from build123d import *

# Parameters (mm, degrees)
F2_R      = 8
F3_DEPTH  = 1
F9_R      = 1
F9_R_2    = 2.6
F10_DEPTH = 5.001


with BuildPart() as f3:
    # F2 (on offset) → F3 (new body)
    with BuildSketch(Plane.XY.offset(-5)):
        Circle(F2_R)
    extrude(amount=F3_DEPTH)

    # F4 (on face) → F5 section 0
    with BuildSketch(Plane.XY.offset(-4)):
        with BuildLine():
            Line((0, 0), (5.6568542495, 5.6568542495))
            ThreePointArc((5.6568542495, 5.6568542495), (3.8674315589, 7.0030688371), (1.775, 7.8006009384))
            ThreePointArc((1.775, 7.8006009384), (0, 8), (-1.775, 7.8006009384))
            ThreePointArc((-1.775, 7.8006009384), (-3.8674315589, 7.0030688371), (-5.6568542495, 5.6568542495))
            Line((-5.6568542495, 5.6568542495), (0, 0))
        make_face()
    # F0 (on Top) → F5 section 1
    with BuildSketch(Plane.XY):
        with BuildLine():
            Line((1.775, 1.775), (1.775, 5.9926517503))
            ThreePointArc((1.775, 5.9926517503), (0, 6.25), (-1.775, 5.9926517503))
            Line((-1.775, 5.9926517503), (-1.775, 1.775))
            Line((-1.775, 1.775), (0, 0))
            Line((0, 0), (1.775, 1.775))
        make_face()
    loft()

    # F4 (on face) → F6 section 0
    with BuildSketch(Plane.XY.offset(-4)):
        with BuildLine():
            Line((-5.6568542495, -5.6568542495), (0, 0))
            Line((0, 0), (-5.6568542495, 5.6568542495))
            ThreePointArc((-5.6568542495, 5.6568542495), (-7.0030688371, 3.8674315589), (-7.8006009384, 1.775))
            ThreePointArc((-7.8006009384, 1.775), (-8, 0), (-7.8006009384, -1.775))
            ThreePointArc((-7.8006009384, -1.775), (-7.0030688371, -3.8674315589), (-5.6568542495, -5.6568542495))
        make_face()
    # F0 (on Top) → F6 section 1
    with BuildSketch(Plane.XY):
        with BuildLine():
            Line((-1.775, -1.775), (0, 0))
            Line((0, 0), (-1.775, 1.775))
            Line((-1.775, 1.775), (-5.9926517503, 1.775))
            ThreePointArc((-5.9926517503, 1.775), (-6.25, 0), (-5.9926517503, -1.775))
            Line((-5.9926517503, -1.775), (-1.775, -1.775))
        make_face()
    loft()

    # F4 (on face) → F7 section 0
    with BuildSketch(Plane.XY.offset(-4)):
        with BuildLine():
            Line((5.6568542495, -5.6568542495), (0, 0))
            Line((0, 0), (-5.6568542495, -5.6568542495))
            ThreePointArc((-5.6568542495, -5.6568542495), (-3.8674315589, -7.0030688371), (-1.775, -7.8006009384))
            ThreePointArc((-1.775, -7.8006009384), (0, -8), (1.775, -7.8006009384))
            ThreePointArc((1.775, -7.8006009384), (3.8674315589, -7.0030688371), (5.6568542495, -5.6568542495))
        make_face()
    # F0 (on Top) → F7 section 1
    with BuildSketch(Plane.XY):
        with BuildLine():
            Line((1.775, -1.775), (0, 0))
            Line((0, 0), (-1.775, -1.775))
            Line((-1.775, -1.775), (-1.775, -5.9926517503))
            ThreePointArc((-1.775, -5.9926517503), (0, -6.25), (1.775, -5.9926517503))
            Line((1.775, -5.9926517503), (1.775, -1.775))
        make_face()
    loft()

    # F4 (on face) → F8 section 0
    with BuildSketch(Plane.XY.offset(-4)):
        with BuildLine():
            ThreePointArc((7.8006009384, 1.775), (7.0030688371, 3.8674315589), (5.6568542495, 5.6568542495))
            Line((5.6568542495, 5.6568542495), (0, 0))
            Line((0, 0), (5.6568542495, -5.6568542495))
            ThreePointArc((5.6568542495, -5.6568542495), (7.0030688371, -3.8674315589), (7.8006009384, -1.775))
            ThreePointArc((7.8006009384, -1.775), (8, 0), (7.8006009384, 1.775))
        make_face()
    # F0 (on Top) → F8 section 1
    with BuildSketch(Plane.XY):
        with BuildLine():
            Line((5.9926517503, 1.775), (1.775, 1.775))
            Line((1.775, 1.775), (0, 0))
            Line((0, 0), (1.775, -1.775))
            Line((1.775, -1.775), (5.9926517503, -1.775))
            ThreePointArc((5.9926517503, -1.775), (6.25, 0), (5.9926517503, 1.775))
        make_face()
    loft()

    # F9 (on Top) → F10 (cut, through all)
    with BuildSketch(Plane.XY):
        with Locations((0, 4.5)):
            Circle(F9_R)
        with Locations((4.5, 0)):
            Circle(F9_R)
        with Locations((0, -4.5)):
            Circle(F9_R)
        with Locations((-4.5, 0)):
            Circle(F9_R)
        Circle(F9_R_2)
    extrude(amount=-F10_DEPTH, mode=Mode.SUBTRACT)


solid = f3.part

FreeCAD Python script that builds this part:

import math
import FreeCAD as App
import Part
import Sketcher

doc = App.newDocument("Part")
body = doc.addObject("PartDesign::Body", "Body")

# Sketch on XY plane
sketch1 = body.newObject("Sketcher::SketchObject", "Sketch")
sketch1.AttachmentSupport = (doc.getObject("XY_Plane"), [""])
sketch1.MapMode = "FlatFace"
sketch1.AttachmentOffset = App.Placement(App.Vector(0, 0, -5), App.Rotation())
sketch1.addGeometry(Part.Circle(App.Vector(0, 0, 0), App.Vector(0, 0, 1), 8), False)
sketch1.addConstraint([
    Sketcher.Constraint("Coincident", 0, 3, -1, 1),
    Sketcher.Constraint("Diameter", 0, 16.0),
])
pad1 = body.newObject("PartDesign::Pad", "Pad")
pad1.Profile = sketch1
pad1.Length = 1

# Sketch on XY plane
sketch2 = body.newObject("Sketcher::SketchObject", "Sketch001")
sketch2.AttachmentSupport = (doc.getObject("XY_Plane"), [""])
sketch2.MapMode = "FlatFace"
sketch2.AttachmentOffset = App.Placement(App.Vector(0, 0, -4), App.Rotation())
sketch2.addGeometry([
    Part.LineSegment(App.Vector(0, 0, 0), App.Vector(5.7, 5.7, 0)),  # 0
    Part.ArcOfCircle(Part.Circle(App.Vector(0, 0, 0), App.Vector(0, 0, 1), 8), math.radians(45), math.radians(77)),  # 1
    Part.ArcOfCircle(Part.Circle(App.Vector(0, 0, 0), App.Vector(0, 0, 1), 8), math.radians(77), math.radians(103)),  # 2
    Part.ArcOfCircle(Part.Circle(App.Vector(0, 0, 0), App.Vector(0, 0, 1), 8), math.radians(103), math.radians(135)),  # 3
    Part.LineSegment(App.Vector(-5.7, 5.7, 0), App.Vector(0, 0, 0)),  # 4
], False)
sketch2.addConstraint([
    Sketcher.Constraint("Coincident", 0, 2, 1, 1),
    Sketcher.Constraint("Tangent", 1, 2, 2, 1),
    Sketcher.Constraint("Tangent", 2, 2, 3, 1),
    Sketcher.Constraint("Coincident", 3, 2, 4, 1),
    Sketcher.Constraint("Coincident", 4, 2, 0, 1),
    Sketcher.Constraint("Coincident", 1, 3, -1, 1),
    Sketcher.Constraint("Coincident", 3, 3, -1, 1),
    Sketcher.Constraint("Coincident", 4, 2, -1, 1),
    Sketcher.Constraint("Perpendicular", 0, 4),
    Sketcher.Constraint("Horizontal", 1, 2, 2, 2),
    Sketcher.Constraint("Horizontal", 0, 2, 3, 2),
    Sketcher.Constraint("Radius", 1, 8.0),
    Sketcher.Constraint("DistanceX", 2, 2, 1, 2, 3.55),
])

# Sketch on XY plane
sketch3 = body.newObject("Sketcher::SketchObject", "Sketch002")
sketch3.AttachmentSupport = (doc.getObject("XY_Plane"), [""])
sketch3.MapMode = "FlatFace"
sketch3.addGeometry([
    Part.LineSegment(App.Vector(1.8, 1.8, 0), App.Vector(1.8, 6, 0)),  # 0
    Part.ArcOfCircle(Part.Circle(App.Vector(0, 0, 0), App.Vector(0, 0, 1), 6.3), math.radians(74), math.radians(106)),  # 1
    Part.LineSegment(App.Vector(-1.8, 6, 0), App.Vector(-1.8, 1.8, 0)),  # 2
    Part.LineSegment(App.Vector(-1.8, 1.8, 0), App.Vector(0, 0, 0)),  # 3
    Part.LineSegment(App.Vector(0, 0, 0), App.Vector(1.8, 1.8, 0)),  # 4
], False)
sketch3.addConstraint([
    Sketcher.Constraint("Coincident", 0, 2, 1, 1),
    Sketcher.Constraint("Coincident", 1, 2, 2, 1),
    Sketcher.Constraint("Coincident", 2, 2, 3, 1),
    Sketcher.Constraint("Coincident", 3, 2, 4, 1),
    Sketcher.Constraint("Coincident", 4, 2, 0, 1),
    Sketcher.Constraint("Vertical", 0),
    Sketcher.Constraint("Vertical", 2),
    Sketcher.Constraint("Coincident", 1, 3, -1, 1),
    Sketcher.Constraint("Coincident", 3, 2, -1, 1),
    Sketcher.Constraint("Symmetric", 2, 2, 4, 2, -2),
    Sketcher.Constraint("Perpendicular", 3, 4),
    Sketcher.Constraint("Radius", 1, 6.25),
    Sketcher.Constraint("DistanceX", 1, 2, 0, 2, 3.55),
])

additiveloft = body.newObject("PartDesign::AdditiveLoft", "AdditiveLoft")
additiveloft.Profile = sketch2
additiveloft.Sections = [sketch3]

# Sketch on XY plane
sketch4 = body.newObject("Sketcher::SketchObject", "Sketch003")
sketch4.AttachmentSupport = (doc.getObject("XY_Plane"), [""])
sketch4.MapMode = "FlatFace"
sketch4.AttachmentOffset = App.Placement(App.Vector(0, 0, -4), App.Rotation())
sketch4.addGeometry([
    Part.LineSegment(App.Vector(-5.7, -5.7, 0), App.Vector(0, 0, 0)),  # 0
    Part.LineSegment(App.Vector(0, 0, 0), App.Vector(-5.7, 5.7, 0)),  # 1
    Part.ArcOfCircle(Part.Circle(App.Vector(0, 0, 0), App.Vector(0, 0, 1), 8), math.radians(135), math.radians(167)),  # 2
    Part.ArcOfCircle(Part.Circle(App.Vector(0, 0, 0), App.Vector(0, 0, 1), 8), math.radians(167), math.radians(193)),  # 3
    Part.ArcOfCircle(Part.Circle(App.Vector(0, 0, 0), App.Vector(0, 0, 1), 8), math.radians(-167), math.radians(-135)),  # 4
], False)
sketch4.addConstraint([
    Sketcher.Constraint("Coincident", 0, 2, 1, 1),
    Sketcher.Constraint("Coincident", 1, 2, 2, 1),
    Sketcher.Constraint("Tangent", 2, 2, 3, 1),
    Sketcher.Constraint("Tangent", 3, 2, 4, 1),
    Sketcher.Constraint("Coincident", 4, 2, 0, 1),
    Sketcher.Constraint("Coincident", 2, 3, -1, 1),
    Sketcher.Constraint("Coincident", 4, 3, -1, 1),
    Sketcher.Constraint("Coincident", 0, 2, -1, 1),
    Sketcher.Constraint("Perpendicular", 0, 1),
    Sketcher.Constraint("Vertical", 2, 2, 3, 2),
    Sketcher.Constraint("Vertical", 1, 2, 4, 2),
    Sketcher.Constraint("Radius", 2, 8.0),
    Sketcher.Constraint("DistanceY", 3, 2, 2, 2, 3.55),
])

# Sketch on XY plane
sketch5 = body.newObject("Sketcher::SketchObject", "Sketch004")
sketch5.AttachmentSupport = (doc.getObject("XY_Plane"), [""])
sketch5.MapMode = "FlatFace"
sketch5.addGeometry([
    Part.LineSegment(App.Vector(-1.8, -1.8, 0), App.Vector(0, 0, 0)),  # 0
    Part.LineSegment(App.Vector(0, 0, 0), App.Vector(-1.8, 1.8, 0)),  # 1
    Part.LineSegment(App.Vector(-1.8, 1.8, 0), App.Vector(-6, 1.8, 0)),  # 2
    Part.ArcOfCircle(Part.Circle(App.Vector(0, 0, 0), App.Vector(0, 0, 1), 6.3), math.radians(164), math.radians(196)),  # 3
    Part.LineSegment(App.Vector(-6, -1.8, 0), App.Vector(-1.8, -1.8, 0)),  # 4
], False)
sketch5.addConstraint([
    Sketcher.Constraint("Coincident", 0, 2, 1, 1),
    Sketcher.Constraint("Coincident", 1, 2, 2, 1),
    Sketcher.Constraint("Coincident", 2, 2, 3, 1),
    Sketcher.Constraint("Coincident", 3, 2, 4, 1),
    Sketcher.Constraint("Coincident", 4, 2, 0, 1),
    Sketcher.Constraint("Horizontal", 2),
    Sketcher.Constraint("Horizontal", 4),
    Sketcher.Constraint("Coincident", 3, 3, -1, 1),
    Sketcher.Constraint("Coincident", 0, 2, -1, 1),
    Sketcher.Constraint("Symmetric", 1, 2, 4, 2, -1),
    Sketcher.Constraint("Perpendicular", 0, 1),
    Sketcher.Constraint("Radius", 3, 6.25),
    Sketcher.Constraint("DistanceY", 3, 2, 2, 2, 3.55),
])

additiveloft2 = body.newObject("PartDesign::AdditiveLoft", "AdditiveLoft001")
additiveloft2.Profile = sketch4
additiveloft2.Sections = [sketch5]

# Sketch on XY plane
sketch6 = body.newObject("Sketcher::SketchObject", "Sketch005")
sketch6.AttachmentSupport = (doc.getObject("XY_Plane"), [""])
sketch6.MapMode = "FlatFace"
sketch6.AttachmentOffset = App.Placement(App.Vector(0, 0, -4), App.Rotation())
sketch6.addGeometry([
    Part.LineSegment(App.Vector(5.7, -5.7, 0), App.Vector(0, 0, 0)),  # 0
    Part.LineSegment(App.Vector(0, 0, 0), App.Vector(-5.7, -5.7, 0)),  # 1
    Part.ArcOfCircle(Part.Circle(App.Vector(0, 0, 0), App.Vector(0, 0, 1), 8), math.radians(-135), math.radians(-103)),  # 2
    Part.ArcOfCircle(Part.Circle(App.Vector(0, 0, 0), App.Vector(0, 0, 1), 8), math.radians(-103), math.radians(-77)),  # 3
    Part.ArcOfCircle(Part.Circle(App.Vector(0, 0, 0), App.Vector(0, 0, 1), 8), math.radians(-77), math.radians(-45)),  # 4
], False)
sketch6.addConstraint([
    Sketcher.Constraint("Coincident", 0, 2, 1, 1),
    Sketcher.Constraint("Coincident", 1, 2, 2, 1),
    Sketcher.Constraint("Tangent", 2, 2, 3, 1),
    Sketcher.Constraint("Tangent", 3, 2, 4, 1),
    Sketcher.Constraint("Coincident", 4, 2, 0, 1),
    Sketcher.Constraint("Coincident", 2, 3, -1, 1),
    Sketcher.Constraint("Coincident", 4, 3, -1, 1),
    Sketcher.Constraint("Coincident", 0, 2, -1, 1),
    Sketcher.Constraint("Perpendicular", 0, 1),
    Sketcher.Constraint("Horizontal", 2, 2, 3, 2),
    Sketcher.Constraint("Horizontal", 1, 2, 4, 2),
    Sketcher.Constraint("Radius", 2, 8.0),
    Sketcher.Constraint("DistanceX", 2, 2, 3, 2, 3.55),
])

# Sketch on XY plane
sketch7 = body.newObject("Sketcher::SketchObject", "Sketch006")
sketch7.AttachmentSupport = (doc.getObject("XY_Plane"), [""])
sketch7.MapMode = "FlatFace"
sketch7.addGeometry([
    Part.LineSegment(App.Vector(1.8, -1.8, 0), App.Vector(0, 0, 0)),  # 0
    Part.LineSegment(App.Vector(0, 0, 0), App.Vector(-1.8, -1.8, 0)),  # 1
    Part.LineSegment(App.Vector(-1.8, -1.8, 0), App.Vector(-1.8, -6, 0)),  # 2
    Part.ArcOfCircle(Part.Circle(App.Vector(0, 0, 0), App.Vector(0, 0, 1), 6.3), math.radians(-106), math.radians(-74)),  # 3
    Part.LineSegment(App.Vector(1.8, -6, 0), App.Vector(1.8, -1.8, 0)),  # 4
], False)
sketch7.addConstraint([
    Sketcher.Constraint("Coincident", 0, 2, 1, 1),
    Sketcher.Constraint("Coincident", 1, 2, 2, 1),
    Sketcher.Constraint("Coincident", 2, 2, 3, 1),
    Sketcher.Constraint("Coincident", 3, 2, 4, 1),
    Sketcher.Constraint("Coincident", 4, 2, 0, 1),
    Sketcher.Constraint("Vertical", 2),
    Sketcher.Constraint("Vertical", 4),
    Sketcher.Constraint("Coincident", 3, 3, -1, 1),
    Sketcher.Constraint("Coincident", 0, 2, -1, 1),
    Sketcher.Constraint("Symmetric", 1, 2, 4, 2, -2),
    Sketcher.Constraint("Perpendicular", 0, 1),
    Sketcher.Constraint("Radius", 3, 6.25),
    Sketcher.Constraint("DistanceX", 2, 2, 3, 2, 3.55),
])

additiveloft3 = body.newObject("PartDesign::AdditiveLoft", "AdditiveLoft002")
additiveloft3.Profile = sketch6
additiveloft3.Sections = [sketch7]

# Sketch on XY plane
sketch8 = body.newObject("Sketcher::SketchObject", "Sketch007")
sketch8.AttachmentSupport = (doc.getObject("XY_Plane"), [""])
sketch8.MapMode = "FlatFace"
sketch8.AttachmentOffset = App.Placement(App.Vector(0, 0, -4), App.Rotation())
sketch8.addGeometry([
    Part.ArcOfCircle(Part.Circle(App.Vector(0, 0, 0), App.Vector(0, 0, 1), 8), math.radians(13), math.radians(45)),  # 0
    Part.LineSegment(App.Vector(5.7, 5.7, 0), App.Vector(0, 0, 0)),  # 1
    Part.LineSegment(App.Vector(0, 0, 0), App.Vector(5.7, -5.7, 0)),  # 2
    Part.ArcOfCircle(Part.Circle(App.Vector(0, 0, 0), App.Vector(0, 0, 1), 8), math.radians(-45), math.radians(-13)),  # 3
    Part.ArcOfCircle(Part.Circle(App.Vector(0, 0, 0), App.Vector(0, 0, 1), 8), math.radians(-13), math.radians(13)),  # 4
], False)
sketch8.addConstraint([
    Sketcher.Constraint("Coincident", 0, 2, 1, 1),
    Sketcher.Constraint("Coincident", 1, 2, 2, 1),
    Sketcher.Constraint("Coincident", 2, 2, 3, 1),
    Sketcher.Constraint("Tangent", 3, 2, 4, 1),
    Sketcher.Constraint("Tangent", 4, 2, 0, 1),
    Sketcher.Constraint("Coincident", 0, 3, -1, 1),
    Sketcher.Constraint("Coincident", 3, 3, -1, 1),
    Sketcher.Constraint("Coincident", 1, 2, -1, 1),
    Sketcher.Constraint("Perpendicular", 1, 2),
    Sketcher.Constraint("Vertical", 0, 2, 2, 2),
    Sketcher.Constraint("Vertical", 3, 2, 4, 2),
    Sketcher.Constraint("Radius", 0, 8.0),
    Sketcher.Constraint("DistanceY", 3, 2, 4, 2, 3.55),
])

# Sketch on XY plane
sketch9 = body.newObject("Sketcher::SketchObject", "Sketch008")
sketch9.AttachmentSupport = (doc.getObject("XY_Plane"), [""])
sketch9.MapMode = "FlatFace"
sketch9.addGeometry([
    Part.LineSegment(App.Vector(6, 1.8, 0), App.Vector(1.8, 1.8, 0)),  # 0
    Part.LineSegment(App.Vector(1.8, 1.8, 0), App.Vector(0, 0, 0)),  # 1
    Part.LineSegment(App.Vector(0, 0, 0), App.Vector(1.8, -1.8, 0)),  # 2
    Part.LineSegment(App.Vector(1.8, -1.8, 0), App.Vector(6, -1.8, 0)),  # 3
    Part.ArcOfCircle(Part.Circle(App.Vector(0, 0, 0), App.Vector(0, 0, 1), 6.3), math.radians(-16), math.radians(16)),  # 4
], False)
sketch9.addConstraint([
    Sketcher.Constraint("Coincident", 0, 2, 1, 1),
    Sketcher.Constraint("Coincident", 1, 2, 2, 1),
    Sketcher.Constraint("Coincident", 2, 2, 3, 1),
    Sketcher.Constraint("Coincident", 3, 2, 4, 1),
    Sketcher.Constraint("Coincident", 4, 2, 0, 1),
    Sketcher.Constraint("Horizontal", 0),
    Sketcher.Constraint("Horizontal", 3),
    Sketcher.Constraint("Coincident", 4, 3, -1, 1),
    Sketcher.Constraint("Coincident", 1, 2, -1, 1),
    Sketcher.Constraint("Symmetric", 0, 2, 2, 2, -1),
    Sketcher.Constraint("Perpendicular", 1, 2),
    Sketcher.Constraint("Radius", 4, 6.25),
    Sketcher.Constraint("DistanceY", 2, 2, 0, 2, 3.55),
])

additiveloft4 = body.newObject("PartDesign::AdditiveLoft", "AdditiveLoft003")
additiveloft4.Profile = sketch8
additiveloft4.Sections = [sketch9]

# Sketch on XY plane
sketch10 = body.newObject("Sketcher::SketchObject", "Sketch009")
sketch10.AttachmentSupport = (doc.getObject("XY_Plane"), [""])
sketch10.MapMode = "FlatFace"
sketch10.addGeometry([
    Part.Circle(App.Vector(0, 4.5, 0), App.Vector(0, 0, 1), 1),  # 0
    Part.Circle(App.Vector(4.5, 0, 0), App.Vector(0, 0, 1), 1),  # 1
    Part.Circle(App.Vector(0, -4.5, 0), App.Vector(0, 0, 1), 1),  # 2
    Part.Circle(App.Vector(-4.5, 0, 0), App.Vector(0, 0, 1), 1),  # 3
    Part.Circle(App.Vector(0, 0, 0), App.Vector(0, 0, 1), 2.6),  # 4
], False)
sketch10.addConstraint([
    Sketcher.Constraint("Coincident", 4, 3, -1, 1),
    Sketcher.Constraint("Equal", 0, 1),
    Sketcher.Constraint("Equal", 1, 2),
    Sketcher.Constraint("Equal", 2, 3),
    Sketcher.Constraint("Symmetric", 0, 3, 2, 3, -1, 1),
    Sketcher.Constraint("Symmetric", 1, 3, 3, 3, -1, 1),
    Sketcher.Constraint("PointOnObject", 0, 3, -2),
    Sketcher.Constraint("PointOnObject", 1, 3, -1),
    Sketcher.Constraint("Diameter", 0, 2.0),
    Sketcher.Constraint("Diameter", 4, 5.2),
    Sketcher.Constraint("DistanceY", 2, 3, 0, 3, 9.0),
    Sketcher.Constraint("DistanceX", 3, 3, 1, 3, 9.0),
])
pocket1 = body.newObject("PartDesign::Pocket", "Pocket")
pocket1.Profile = sketch10
pocket1.Type = "ThroughAll"

doc.recompute()
